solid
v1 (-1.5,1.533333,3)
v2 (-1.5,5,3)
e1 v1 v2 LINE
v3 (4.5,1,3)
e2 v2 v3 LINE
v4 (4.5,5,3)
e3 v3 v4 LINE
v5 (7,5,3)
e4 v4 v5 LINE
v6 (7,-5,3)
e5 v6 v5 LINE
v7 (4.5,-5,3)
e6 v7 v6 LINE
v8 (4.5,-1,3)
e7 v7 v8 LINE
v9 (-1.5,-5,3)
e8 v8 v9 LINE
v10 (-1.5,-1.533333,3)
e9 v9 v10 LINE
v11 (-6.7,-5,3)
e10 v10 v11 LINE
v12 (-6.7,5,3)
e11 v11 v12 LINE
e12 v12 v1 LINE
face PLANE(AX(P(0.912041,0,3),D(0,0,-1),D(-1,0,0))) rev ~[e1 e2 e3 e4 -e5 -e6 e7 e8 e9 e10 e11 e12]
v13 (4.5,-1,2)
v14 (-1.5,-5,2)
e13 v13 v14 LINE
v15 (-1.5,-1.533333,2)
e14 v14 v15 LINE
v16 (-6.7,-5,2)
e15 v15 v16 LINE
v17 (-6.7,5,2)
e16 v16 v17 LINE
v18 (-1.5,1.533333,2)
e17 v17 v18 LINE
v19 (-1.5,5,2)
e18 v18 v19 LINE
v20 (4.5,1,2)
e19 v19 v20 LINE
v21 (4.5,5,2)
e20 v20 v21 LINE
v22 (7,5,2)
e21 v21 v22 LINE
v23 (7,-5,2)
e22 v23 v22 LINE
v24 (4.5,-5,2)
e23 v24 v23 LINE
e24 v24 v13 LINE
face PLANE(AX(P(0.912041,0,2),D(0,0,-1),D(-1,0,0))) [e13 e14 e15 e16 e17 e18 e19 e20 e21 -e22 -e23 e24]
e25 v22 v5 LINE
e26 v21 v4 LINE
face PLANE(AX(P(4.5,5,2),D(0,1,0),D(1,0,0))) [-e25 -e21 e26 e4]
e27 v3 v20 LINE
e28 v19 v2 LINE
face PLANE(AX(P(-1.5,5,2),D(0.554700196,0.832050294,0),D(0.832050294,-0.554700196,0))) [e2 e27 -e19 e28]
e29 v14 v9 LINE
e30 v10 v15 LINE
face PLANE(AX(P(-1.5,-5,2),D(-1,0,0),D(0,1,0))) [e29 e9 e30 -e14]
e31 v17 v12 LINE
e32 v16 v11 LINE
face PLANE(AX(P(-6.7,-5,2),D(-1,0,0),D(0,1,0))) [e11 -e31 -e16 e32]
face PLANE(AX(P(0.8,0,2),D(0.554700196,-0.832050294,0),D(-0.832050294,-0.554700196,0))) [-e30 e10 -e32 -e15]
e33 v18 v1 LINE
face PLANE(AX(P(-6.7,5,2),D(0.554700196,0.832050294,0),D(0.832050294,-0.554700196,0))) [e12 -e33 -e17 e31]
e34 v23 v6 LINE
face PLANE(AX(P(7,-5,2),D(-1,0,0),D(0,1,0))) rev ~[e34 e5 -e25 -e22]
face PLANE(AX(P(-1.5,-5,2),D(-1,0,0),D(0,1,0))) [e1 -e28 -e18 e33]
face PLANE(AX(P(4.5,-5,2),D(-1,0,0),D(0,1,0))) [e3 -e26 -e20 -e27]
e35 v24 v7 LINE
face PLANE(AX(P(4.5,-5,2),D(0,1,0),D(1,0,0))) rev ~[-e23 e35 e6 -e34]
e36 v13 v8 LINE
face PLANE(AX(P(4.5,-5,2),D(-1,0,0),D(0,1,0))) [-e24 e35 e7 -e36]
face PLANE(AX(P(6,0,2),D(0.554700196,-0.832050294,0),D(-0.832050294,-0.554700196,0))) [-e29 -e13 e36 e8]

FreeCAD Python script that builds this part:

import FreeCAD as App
import Part
import Sketcher
Q = App.Units.Quantity


def add_polygon(sketch, points):
    """Adds a closed chain of lines whose ends are joined by coincident constraints."""
    first, n = sketch.GeometryCount, len(points)
    for a, b in zip(points, points[1:] + points[:1]):
        sketch.addGeometry(Part.LineSegment(App.Vector(*a, 0), App.Vector(*b, 0)), False)
    for i in range(n):
        sketch.addConstraint(Sketcher.Constraint("Coincident", first + i, 2, first + (i + 1) % n, 1))

doc = App.newDocument("Part")
body = doc.addObject("PartDesign::Body", "Body")

# Sketch on XY plane
sketch1 = body.newObject("Sketcher::SketchObject", "Sketch")
sketch1.AttachmentSupport = (doc.getObject("XY_Plane"), [""])
sketch1.MapMode = "FlatFace"
add_polygon(sketch1, [(3, 0), (-4, 5), (-4, -5)])  # lines 0-2
sketch1.addConstraint([
    Sketcher.Constraint("Vertical", 1),
    Sketcher.Constraint("PointOnObject", 2, 2, -1),
    Sketcher.Constraint("Equal", 0, 2),
    Sketcher.Constraint("DistanceY", 1, 2, 1, 1, Q("10 mm")),
    Sketcher.Constraint("DistanceX", -1, 1, 2, 2, Q("3 mm")),
    Sketcher.Constraint("DistanceX", 0, 2, -1, 1, Q("4.5 mm")),
])
pad1 = body.newObject("PartDesign::Pad", "Pad")
pad1.Profile = sketch1
pad1.Length = 1
body2 = doc.addObject("PartDesign::Body", "Body001")
doc.recompute()

body.Placement = App.Placement(App.Vector(-2.2, 0, 2), App.Rotation(App.Vector(0, 0, 1), 0))
boolean = body2.newObject("PartDesign::Boolean", "Boolean")
boolean.Type = "Fuse"
boolean.addObjects([body])
body3 = doc.addObject("PartDesign::Body", "Body002")

# Sketch on XY plane
sketch2 = body3.newObject("Sketcher::SketchObject", "Sketch001")
sketch2.AttachmentSupport = (doc.getObject("XY_Plane002"), [""])
sketch2.MapMode = "FlatFace"
add_polygon(sketch2, [(4, 0), (-4, 5), (-4, -5)])  # lines 0-2
sketch2.addConstraint([
    Sketcher.Constraint("Vertical", 1),
    Sketcher.Constraint("PointOnObject", 2, 2, -1),
    Sketcher.Constraint("Equal", 0, 2),
    Sketcher.Constraint("DistanceY", 1, 2, 1, 1, Q("10 mm")),
    Sketcher.Constraint("DistanceX", -1, 1, 2, 2, Q("4 mm")),
    Sketcher.Constraint("DistanceX", 0, 2, -1, 1, Q("3.5 mm")),
])
pad2 = body3.newObject("PartDesign::Pad", "Pad001")
pad2.Profile = sketch2
pad2.Length = 1
body4 = doc.addObject("PartDesign::Body", "Body003")
doc.recompute()

body3.Placement = App.Placement(App.Vector(2, 0, 2), App.Rotation(App.Vector(0, 0, 1), 0))
boolean2 = body4.newObject("PartDesign::Boolean", "Boolean001")
boolean2.Type = "Fuse"
boolean2.addObjects([body3])
body5 = doc.addObject("PartDesign::Body", "Body004")

# Sketch on XY plane
sketch3 = body5.newObject("Sketcher::SketchObject", "Sketch002")
sketch3.AttachmentSupport = (doc.getObject("XY_Plane004"), [""])
sketch3.MapMode = "FlatFace"
add_polygon(sketch3, [(-5.7, 5), (-5.7, -5), (-3.2, -5), (-3.2, 5)])  # lines 0-3
sketch3.addConstraint([
    Sketcher.Constraint("Vertical", 0),
    Sketcher.Constraint("Horizontal", 1),
    Sketcher.Constraint("Vertical", 2),
    Sketcher.Constraint("Horizontal", 3),
    Sketcher.Constraint("DistanceY", 0, 2, 0, 1, Q("10 mm")),
    Sketcher.Constraint("DistanceX", 1, 1, 1, 2, Q("2.5 mm")),
    Sketcher.Constraint("DistanceY", 0, 2, -1, 1, Q("5 mm")),
    Sketcher.Constraint("DistanceX", 0, 2, -1, 1, Q("5.7 mm")),
])
pad3 = body5.newObject("PartDesign::Pad", "Pad002")
pad3.Profile = sketch3
pad3.Length = 1
body6 = doc.addObject("PartDesign::Body", "Body005")
body6.AllowCompound = True
doc.recompute()

body5.Placement = App.Placement(App.Vector(10.2, 0, 2), App.Rotation(App.Vector(0, 0, 1), 0))
boolean3 = body6.newObject("PartDesign::Boolean", "Boolean002")
boolean3.Type = "Fuse"
boolean3.addObjects([body5])
doc.recompute()

boolean4 = body6.newObject("PartDesign::Boolean", "Boolean003")
boolean4.Type = "Fuse"
boolean4.addObjects([body2])
doc.recompute()

boolean5 = body6.newObject("PartDesign::Boolean", "Boolean004")
boolean5.Type = "Fuse"
boolean5.addObjects([body4])

doc.recompute()
